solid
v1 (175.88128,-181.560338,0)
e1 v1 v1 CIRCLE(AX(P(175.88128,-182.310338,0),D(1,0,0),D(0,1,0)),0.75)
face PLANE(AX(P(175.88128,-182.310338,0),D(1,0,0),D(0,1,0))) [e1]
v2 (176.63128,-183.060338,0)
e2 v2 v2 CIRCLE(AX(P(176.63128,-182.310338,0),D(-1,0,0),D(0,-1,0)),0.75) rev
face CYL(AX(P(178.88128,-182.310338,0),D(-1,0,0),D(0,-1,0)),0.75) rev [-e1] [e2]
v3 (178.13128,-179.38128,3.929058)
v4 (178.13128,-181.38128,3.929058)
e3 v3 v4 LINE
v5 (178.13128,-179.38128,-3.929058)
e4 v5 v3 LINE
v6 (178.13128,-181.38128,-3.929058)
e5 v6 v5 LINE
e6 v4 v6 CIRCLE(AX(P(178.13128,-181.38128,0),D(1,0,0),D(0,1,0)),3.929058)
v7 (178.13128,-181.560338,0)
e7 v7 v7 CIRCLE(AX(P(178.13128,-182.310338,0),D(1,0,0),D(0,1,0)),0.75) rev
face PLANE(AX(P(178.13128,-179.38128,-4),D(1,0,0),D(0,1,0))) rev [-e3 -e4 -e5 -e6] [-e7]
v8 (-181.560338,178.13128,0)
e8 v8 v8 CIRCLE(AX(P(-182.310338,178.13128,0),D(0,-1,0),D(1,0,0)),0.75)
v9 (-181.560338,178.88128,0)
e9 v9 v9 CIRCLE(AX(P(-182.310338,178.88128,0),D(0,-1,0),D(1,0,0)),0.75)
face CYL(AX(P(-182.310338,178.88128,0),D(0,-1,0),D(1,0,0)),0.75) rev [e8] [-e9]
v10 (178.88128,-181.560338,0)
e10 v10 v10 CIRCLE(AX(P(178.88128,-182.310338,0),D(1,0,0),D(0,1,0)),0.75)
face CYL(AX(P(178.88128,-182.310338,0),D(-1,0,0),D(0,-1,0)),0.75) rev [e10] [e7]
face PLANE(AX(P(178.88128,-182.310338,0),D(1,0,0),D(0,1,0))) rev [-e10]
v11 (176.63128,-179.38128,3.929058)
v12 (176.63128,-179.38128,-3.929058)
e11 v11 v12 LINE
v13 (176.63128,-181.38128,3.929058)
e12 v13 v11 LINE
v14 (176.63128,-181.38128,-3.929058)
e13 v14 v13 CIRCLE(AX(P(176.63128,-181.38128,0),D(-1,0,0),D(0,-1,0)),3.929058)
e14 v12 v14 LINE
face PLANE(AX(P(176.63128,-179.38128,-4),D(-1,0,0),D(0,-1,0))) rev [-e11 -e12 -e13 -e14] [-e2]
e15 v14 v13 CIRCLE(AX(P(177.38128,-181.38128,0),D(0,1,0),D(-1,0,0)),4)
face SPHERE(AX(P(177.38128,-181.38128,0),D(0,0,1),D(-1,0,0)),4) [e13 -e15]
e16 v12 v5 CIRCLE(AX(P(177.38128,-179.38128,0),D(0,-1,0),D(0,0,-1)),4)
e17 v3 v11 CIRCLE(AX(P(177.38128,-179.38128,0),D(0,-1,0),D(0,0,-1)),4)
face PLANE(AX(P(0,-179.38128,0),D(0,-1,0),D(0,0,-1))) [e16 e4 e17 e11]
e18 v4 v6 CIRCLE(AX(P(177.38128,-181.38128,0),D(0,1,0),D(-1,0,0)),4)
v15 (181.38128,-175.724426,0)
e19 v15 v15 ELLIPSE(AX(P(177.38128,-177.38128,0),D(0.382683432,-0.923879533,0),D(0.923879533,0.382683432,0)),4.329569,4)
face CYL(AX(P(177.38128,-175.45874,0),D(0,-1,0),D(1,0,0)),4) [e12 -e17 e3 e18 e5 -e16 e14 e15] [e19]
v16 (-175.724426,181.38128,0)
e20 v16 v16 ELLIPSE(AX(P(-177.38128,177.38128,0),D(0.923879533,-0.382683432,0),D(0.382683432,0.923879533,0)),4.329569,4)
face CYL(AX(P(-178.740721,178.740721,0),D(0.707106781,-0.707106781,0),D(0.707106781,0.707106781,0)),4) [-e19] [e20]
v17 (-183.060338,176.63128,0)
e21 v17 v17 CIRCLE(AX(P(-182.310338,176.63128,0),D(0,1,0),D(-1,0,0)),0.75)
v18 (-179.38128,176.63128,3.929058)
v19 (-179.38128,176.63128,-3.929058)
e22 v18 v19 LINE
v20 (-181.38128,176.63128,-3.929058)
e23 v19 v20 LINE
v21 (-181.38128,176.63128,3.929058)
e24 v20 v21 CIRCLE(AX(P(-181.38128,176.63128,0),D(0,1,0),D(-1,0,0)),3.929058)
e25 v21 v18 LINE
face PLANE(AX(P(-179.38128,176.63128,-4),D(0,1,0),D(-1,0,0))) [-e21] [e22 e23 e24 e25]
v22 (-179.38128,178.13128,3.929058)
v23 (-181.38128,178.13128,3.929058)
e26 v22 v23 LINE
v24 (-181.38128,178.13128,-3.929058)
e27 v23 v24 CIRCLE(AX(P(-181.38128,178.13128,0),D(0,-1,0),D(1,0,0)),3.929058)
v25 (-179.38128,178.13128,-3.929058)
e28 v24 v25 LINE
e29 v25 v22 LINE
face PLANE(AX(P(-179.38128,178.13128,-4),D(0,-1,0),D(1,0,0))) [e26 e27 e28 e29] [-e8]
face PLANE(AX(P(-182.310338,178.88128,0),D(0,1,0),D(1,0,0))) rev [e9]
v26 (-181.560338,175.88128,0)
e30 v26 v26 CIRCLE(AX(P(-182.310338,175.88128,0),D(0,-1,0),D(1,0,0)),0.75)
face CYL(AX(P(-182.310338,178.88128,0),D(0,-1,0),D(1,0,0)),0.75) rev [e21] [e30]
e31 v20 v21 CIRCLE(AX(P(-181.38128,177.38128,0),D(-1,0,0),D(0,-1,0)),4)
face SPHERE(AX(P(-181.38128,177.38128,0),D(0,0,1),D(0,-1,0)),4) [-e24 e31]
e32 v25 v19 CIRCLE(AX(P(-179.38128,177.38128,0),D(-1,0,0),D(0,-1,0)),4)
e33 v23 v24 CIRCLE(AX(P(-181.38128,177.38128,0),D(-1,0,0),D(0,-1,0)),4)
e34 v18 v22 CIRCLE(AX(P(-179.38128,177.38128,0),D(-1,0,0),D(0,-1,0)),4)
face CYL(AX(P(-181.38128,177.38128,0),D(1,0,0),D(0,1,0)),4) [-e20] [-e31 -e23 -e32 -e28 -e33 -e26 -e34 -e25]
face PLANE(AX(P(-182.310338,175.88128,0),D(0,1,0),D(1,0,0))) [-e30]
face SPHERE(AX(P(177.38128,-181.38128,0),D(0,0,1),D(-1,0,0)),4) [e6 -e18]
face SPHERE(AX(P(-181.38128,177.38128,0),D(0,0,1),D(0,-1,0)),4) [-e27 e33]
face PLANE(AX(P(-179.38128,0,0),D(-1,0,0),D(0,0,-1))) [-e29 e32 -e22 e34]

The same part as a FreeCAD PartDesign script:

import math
import FreeCAD as App
import Part
import Sketcher

V = App.Vector
Q = App.Units.Quantity

doc = App.newDocument("Part")
body = doc.addObject("PartDesign::Body", "Body")

# Sketch on an angled plane
sketch1 = body.newObject("Sketcher::SketchObject", "Sketch")
sketch1.Placement = App.Placement(V(0, 0, 0), App.Rotation(V(0, 0, 1), V(0.707106781, 0.707106781, 0), V(-0.707106781, 0.707106781, 0), "ZXY"))
sketch1.addGeometry(Part.Circle(V(0, 0, 0), V(0, 0, 1), 4), False)
sketch1.addConstraint([
    Sketcher.Constraint("Coincident", 0, 3, -1, 1),
    Sketcher.Constraint("Diameter", 0, Q("8 mm")),
])

# Sketch on XY plane
sketch2 = body.newObject("Sketcher::SketchObject", "Sketch001")
sketch2.AttachmentSupport = (doc.getObject("XY_Plane"), [""])
sketch2.MapMode = "FlatFace"
sketch2.addGeometry([
    Part.LineSegment(V(-181.4, 177.4, 0), V(-177.4, 177.4, 0)),
    Part.LineSegment(V(-177.4, 177.4, 0), V(177.4, -177.4, 0)),
    Part.LineSegment(V(177.4, -177.4, 0), V(177.4, -181.4, 0)),
], False)
sketch2.addConstraint([
    Sketcher.Constraint("Coincident", 0, 2, 1, 1),
    Sketcher.Constraint("Coincident", 1, 2, 2, 1),
    Sketcher.Constraint("Horizontal", 0),
    Sketcher.Constraint("Vertical", 2),
    Sketcher.Constraint("Symmetric", 0, 2, 1, 2, -1, 1),
    Sketcher.Constraint("Equal", 0, 2),
    Sketcher.Constraint("DistanceX", 0, 1, 0, 2, Q("4 mm")),
    Sketcher.Constraint("Angle", 1, Q("-45 deg")),
    Sketcher.Constraint("DistanceX", 0, 1, -1, 1, Q("181.38128 mm")),
])
doc.recompute()

additivepipe = body.newObject("PartDesign::AdditivePipe", "AdditivePipe")
additivepipe.Profile = sketch1
additivepipe.Spine = (sketch2, ["Edge1", "Edge2", "Edge3"])
additivepipe.Transition = "Right corner"

# Sketch on XZ plane
sketch3 = body.newObject("Sketcher::SketchObject", "Sketch002")
sketch3.AttachmentSupport = (doc.getObject("XZ_Plane"), [""])
sketch3.MapMode = "FlatFace"
sketch3.AttachmentOffset = App.Placement(V(0, 0, 181.38128), App.Rotation())
sketch3.addGeometry([
    Part.LineSegment(V(177.4, 4, 0), V(177.4, -4, 0)),
    Part.ArcOfCircle(Part.Circle(V(177.4, 0, 0), V(0, 0, 1), 4), math.radians(-90), math.radians(90)),
], False)
sketch3.addGeometry(Part.LineSegment(V(177.4, 4, 0), V(177.4, -4, 0)), True)  # axis
sketch3.addConstraint([
    Sketcher.Constraint("Coincident", 0, 1, 1, 2),
    Sketcher.Constraint("Coincident", 1, 1, 0, 2),
    Sketcher.Constraint("Vertical", 0),
    Sketcher.Constraint("Vertical", 2),
    Sketcher.Constraint("Coincident", 2, 1, 0, 1),
    Sketcher.Constraint("PointOnObject", 1, 3, -1),
    Sketcher.Constraint("Vertical", 1, 3, 0, 1),
    Sketcher.Constraint("Equal", 0, 2),
    Sketcher.Constraint("Radius", 1, Q("4 mm")),
    Sketcher.Constraint("DistanceX", -1, 1, 1, 3, Q("177.38128 mm")),
])
revolution = body.newObject("PartDesign::Revolution", "Revolution")
revolution.Profile = sketch3
revolution.ReferenceAxis = (sketch3, ["Axis0"])
revolution.Angle = 180

# Sketch on XZ plane
sketch4 = body.newObject("Sketcher::SketchObject", "Sketch003")
sketch4.AttachmentSupport = (doc.getObject("XZ_Plane"), [""])
sketch4.MapMode = "FlatFace"
sketch4.AttachmentOffset = App.Placement(V(0, 0, 179.38128), App.Rotation())
sketch4.addGeometry([
    Part.LineSegment(V(178.1, -4, 0), V(178.1, 4, 0)),
    Part.LineSegment(V(178.1, 4, 0), V(176.6, 4, 0)),
    Part.LineSegment(V(176.6, 4, 0), V(176.6, -4, 0)),
    Part.LineSegment(V(176.6, -4, 0), V(178.1, -4, 0)),
], False)
sketch4.addConstraint([
    Sketcher.Constraint("Coincident", 0, 2, 1, 1),
    Sketcher.Constraint("Coincident", 1, 2, 2, 1),
    Sketcher.Constraint("Coincident", 2, 2, 3, 1),
    Sketcher.Constraint("Coincident", 3, 2, 0, 1),
    Sketcher.Constraint("Vertical", 0),
    Sketcher.Constraint("Horizontal", 1),
    Sketcher.Constraint("Vertical", 2),
    Sketcher.Constraint("Horizontal", 3),
    Sketcher.Constraint("DistanceY", 0, 1, 0, 2, Q("8 mm")),
    Sketcher.Constraint("DistanceX", 1, 2, 1, 1, Q("1.5 mm")),
    Sketcher.Constraint("DistanceY", -1, 1, 0, 2, Q("4 mm")),
    Sketcher.Constraint("DistanceX", -1, 1, 0, 2, Q("178.13128 mm")),
])
pocket1 = body.newObject("PartDesign::Pocket", "Pocket")
pocket1.Profile = sketch4
pocket1.Length = 12
pocket1.Reversed = True

# Sketch on YZ plane
sketch5 = body.newObject("Sketcher::SketchObject", "Sketch004")
sketch5.AttachmentSupport = (doc.getObject("YZ_Plane"), [""])
sketch5.MapMode = "FlatFace"
sketch5.AttachmentOffset = App.Placement(V(0, 0, 177.38128), App.Rotation())
sketch5.addGeometry(Part.Circle(V(-182.3, 0, 0), V(0, 0, 1), 0.8), False)
sketch5.addConstraint([
    Sketcher.Constraint("PointOnObject", 0, 3, -1),
    Sketcher.Constraint("Diameter", 0, Q("1.5 mm")),
    Sketcher.Constraint("DistanceX", 0, 3, -1, 1, Q("182.310338 mm")),
])
pocket2 = body.newObject("PartDesign::Pocket", "Pocket001")
pocket2.Profile = sketch5
pocket2.Length = 3
pocket2.Midplane = True
doc.recompute()

datumplane = body.newObject("PartDesign::Plane", "DatumPlane")
datumplane.Placement = App.Placement(V(0, 0, 0), App.Rotation(V(0.707106781, 0.707106781, 0), V(0, 0, -1), V(-0.707106781, 0.707106781, 0), "ZXY"))
mirrored = body.newObject("PartDesign::Mirrored", "Mirrored")
mirrored.Originals = [revolution, pocket1, pocket2]
mirrored.MirrorPlane = (datumplane, [""])
body.Tip = mirrored

doc.recompute()
